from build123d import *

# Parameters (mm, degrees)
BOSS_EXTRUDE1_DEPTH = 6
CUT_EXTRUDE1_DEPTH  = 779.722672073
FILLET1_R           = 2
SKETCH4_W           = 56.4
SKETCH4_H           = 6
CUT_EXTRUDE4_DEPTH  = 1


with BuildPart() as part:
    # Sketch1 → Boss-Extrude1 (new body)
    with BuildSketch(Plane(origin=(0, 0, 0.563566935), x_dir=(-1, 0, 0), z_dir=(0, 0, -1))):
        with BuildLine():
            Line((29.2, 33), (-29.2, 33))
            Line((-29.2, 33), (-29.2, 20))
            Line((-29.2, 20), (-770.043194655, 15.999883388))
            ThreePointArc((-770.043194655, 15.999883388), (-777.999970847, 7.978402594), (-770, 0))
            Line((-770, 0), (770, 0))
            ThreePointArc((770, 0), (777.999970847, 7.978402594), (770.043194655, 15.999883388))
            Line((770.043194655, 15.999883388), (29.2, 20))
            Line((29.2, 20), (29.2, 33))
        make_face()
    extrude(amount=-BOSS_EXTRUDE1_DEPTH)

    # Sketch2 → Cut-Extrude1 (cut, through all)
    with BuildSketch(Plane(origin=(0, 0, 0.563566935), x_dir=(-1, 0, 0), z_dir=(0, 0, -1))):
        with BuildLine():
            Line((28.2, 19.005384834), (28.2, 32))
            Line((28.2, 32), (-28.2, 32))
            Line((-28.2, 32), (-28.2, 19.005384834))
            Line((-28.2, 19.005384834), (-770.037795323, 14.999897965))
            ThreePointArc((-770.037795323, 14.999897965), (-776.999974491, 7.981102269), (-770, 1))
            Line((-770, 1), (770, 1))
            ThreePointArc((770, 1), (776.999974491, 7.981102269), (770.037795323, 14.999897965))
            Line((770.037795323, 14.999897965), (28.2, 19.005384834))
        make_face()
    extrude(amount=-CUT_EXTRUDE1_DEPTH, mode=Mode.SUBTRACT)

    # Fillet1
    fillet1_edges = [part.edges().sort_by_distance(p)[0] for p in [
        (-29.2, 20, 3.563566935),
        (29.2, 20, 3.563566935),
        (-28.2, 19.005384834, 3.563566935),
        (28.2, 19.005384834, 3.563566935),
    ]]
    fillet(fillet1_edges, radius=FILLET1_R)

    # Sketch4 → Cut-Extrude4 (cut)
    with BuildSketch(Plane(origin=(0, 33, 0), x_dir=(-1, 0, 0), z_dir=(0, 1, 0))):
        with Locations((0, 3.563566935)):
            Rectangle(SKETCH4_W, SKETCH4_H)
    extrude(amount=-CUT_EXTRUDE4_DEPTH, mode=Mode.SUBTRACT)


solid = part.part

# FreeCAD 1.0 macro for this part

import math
import FreeCAD as App
import Part
import Sketcher

V = App.Vector
Q = App.Units.Quantity


def edges_at(feature, points):
    """Names of the edges that pass closest to the given points."""
    edges = feature.Shape.Edges
    near = lambda p: min(range(len(edges)), key=lambda i: edges[i].distToShape(Part.Vertex(*p))[0])
    return sorted({f"Edge{near(p) + 1}" for p in points})

doc = App.newDocument("Part")
params = doc.addObject("Spreadsheet::Sheet", "Params")
for row, (alias, value) in enumerate([
    ("sketch1_radius", "8 mm"),
    ("sketch1_width", "1540 mm"),
    ("sketch1_height", "13 mm"),
    ("sketch1_width2", "58.4 mm"),
    ("pad1_length", "6 mm"),
    ("sketch2_radius", "7 mm"),
    ("sketch2_width", "1540 mm"),
    ("sketch2_width2", "56.4 mm"),
    ("fillet_radius", "2 mm"),
    ("sketch3_height", "6 mm"),
    ("sketch3_width", "56.4 mm"),
    ("pocket2_length", "1 mm"),
], start=1):
    params.set(f"A{row}", alias)
    params.set(f"B{row}", "=" + value)
    params.setAlias(f"B{row}", alias)

body = doc.addObject("PartDesign::Body", "Body")

# Sketch on XY plane
sketch1 = body.newObject("Sketcher::SketchObject", "Sketch")
sketch1.AttachmentSupport = (doc.getObject("XY_Plane"), [""])
sketch1.MapMode = "FlatFace"
sketch1.AttachmentOffset = App.Placement(V(0, 0, 0.563567), App.Rotation())
sketch1.addGeometry([
    Part.LineSegment(V(-29.2, 33, 0), V(29.2, 33, 0)),  # 0
    Part.LineSegment(V(29.2, 33, 0), V(29.2, 20, 0)),  # 1
    Part.LineSegment(V(29.2, 20, 0), V(770.043195, 15.999883, 0)),  # 2
    Part.ArcOfCircle(Part.Circle(V(770, 8, 0), V(0, 0, 1), 8), math.radians(-90), math.radians(89.69064)),  # 3
    Part.LineSegment(V(770, 0, 0), V(-770, 0, 0)),  # 4
    Part.ArcOfCircle(Part.Circle(V(-770, 8, 0), V(0, 0, 1), 8), math.radians(90.30936), math.radians(270)),  # 5
    Part.LineSegment(V(-770.043195, 15.999883, 0), V(-29.2, 20, 0)),  # 6
    Part.LineSegment(V(-29.2, 20, 0), V(-29.2, 33, 0)),  # 7
], False)
sketch1.addConstraint([
    Sketcher.Constraint("Coincident", 0, 2, 1, 1),
    Sketcher.Constraint("Coincident", 1, 2, 2, 1),
    Sketcher.Constraint("Tangent", 2, 2, 3, 2),
    Sketcher.Constraint("Tangent", 3, 1, 4, 1),
    Sketcher.Constraint("Tangent", 4, 2, 5, 2),
    Sketcher.Constraint("Tangent", 5, 1, 6, 1),
    Sketcher.Constraint("Coincident", 6, 2, 7, 1),
    Sketcher.Constraint("Coincident", 7, 2, 0, 1),
    Sketcher.Constraint("Horizontal", 0),
    Sketcher.Constraint("Vertical", 1),
    Sketcher.Constraint("Horizontal", 4),
    Sketcher.Constraint("Vertical", 7),
    Sketcher.Constraint("Equal", 3, 5),
    Sketcher.Constraint("Symmetric", 3, 1, 4, 2, -1, 1),
    Sketcher.Constraint("Symmetric", 1, 2, 6, 2, -2),
    Sketcher.Constraint("Radius", 3, Q("8 mm")),
    Sketcher.Constraint("DistanceX", 4, 2, 4, 1, Q("1540 mm")),
    Sketcher.Constraint("DistanceY", 1, 2, 1, 1, Q("13 mm")),
    Sketcher.Constraint("DistanceX", 0, 1, 0, 2, Q("58.4 mm")),
    Sketcher.Constraint("DistanceY", -1, 1, 0, 2, Q("33 mm")),
])
sketch1.setExpression("Constraints[15]", "Params.sketch1_radius")
sketch1.setExpression("Constraints[16]", "Params.sketch1_width")
sketch1.setExpression("Constraints[17]", "Params.sketch1_height")
sketch1.setExpression("Constraints[18]", "Params.sketch1_width2")
pad1 = body.newObject("PartDesign::Pad", "Pad")
pad1.Profile = sketch1
pad1.setExpression("Length", "Params.pad1_length")

# Sketch on XY plane
sketch2 = body.newObject("Sketcher::SketchObject", "Sketch001")
sketch2.AttachmentSupport = (doc.getObject("XY_Plane"), [""])
sketch2.MapMode = "FlatFace"
sketch2.AttachmentOffset = App.Placement(V(0, 0, 0.563567), App.Rotation())
sketch2.addGeometry([
    Part.LineSegment(V(-28.2, 19.005385, 0), V(-28.2, 32, 0)),  # 0
    Part.LineSegment(V(-28.2, 32, 0), V(28.2, 32, 0)),  # 1
    Part.LineSegment(V(28.2, 32, 0), V(28.2, 19.005385, 0)),  # 2
    Part.LineSegment(V(28.2, 19.005385, 0), V(770.037795, 14.999898, 0)),  # 3
    Part.ArcOfCircle(Part.Circle(V(770, 8, 0), V(0, 0, 1), 7), math.radians(-90), math.radians(89.69064)),  # 4
    Part.LineSegment(V(770, 1, 0), V(-770, 1, 0)),  # 5
    Part.ArcOfCircle(Part.Circle(V(-770, 8, 0), V(0, 0, 1), 7), math.radians(90.30936), math.radians(270)),  # 6
    Part.LineSegment(V(-770.037795, 14.999898, 0), V(-28.2, 19.005385, 0)),  # 7
], False)
sketch2.addConstraint([
    Sketcher.Constraint("Coincident", 0, 2, 1, 1),
    Sketcher.Constraint("Coincident", 1, 2, 2, 1),
    Sketcher.Constraint("Coincident", 2, 2, 3, 1),
    Sketcher.Constraint("Tangent", 3, 2, 4, 2),
    Sketcher.Constraint("Tangent", 4, 1, 5, 1),
    Sketcher.Constraint("Tangent", 5, 2, 6, 2),
    Sketcher.Constraint("Tangent", 6, 1, 7, 1),
    Sketcher.Constraint("Coincident", 7, 2, 0, 1),
    Sketcher.Constraint("Vertical", 0),
    Sketcher.Constraint("Horizontal", 1),
    Sketcher.Constraint("Vertical", 2),
    Sketcher.Constraint("Horizontal", 5),
    Sketcher.Constraint("Equal", 4, 6),
    Sketcher.Constraint("Symmetric", 2, 2, 7, 2, -2),
    Sketcher.Constraint("Equal", 3, 7),
    Sketcher.Constraint("Radius", 4, Q("7 mm")),
    Sketcher.Constraint("DistanceX", 5, 2, 5, 1, Q("1540 mm")),
    Sketcher.Constraint("DistanceX", 1, 1, 1, 2, Q("56.4 mm")),
    Sketcher.Constraint("DistanceY", -1, 1, 4, 3, Q("8 mm")),
    Sketcher.Constraint("DistanceY", -1, 1, 0, 2, Q("32 mm")),
    Sketcher.Constraint("Distance", 3, Q("741.848609 mm")),
])
sketch2.setExpression("Constraints[15]", "Params.sketch2_radius")
sketch2.setExpression("Constraints[16]", "Params.sketch2_width")
sketch2.setExpression("Constraints[17]", "Params.sketch2_width2")
pocket1 = body.newObject("PartDesign::Pocket", "Pocket")
pocket1.Profile = sketch2
pocket1.Type = "ThroughAll"
pocket1.Reversed = True
doc.recompute()

fillet = body.newObject("PartDesign::Fillet", "Fillet")
fillet.Base = (pocket1, edges_at(pocket1, [
    (-29.2, 20, 3.564),
    (29.2, 20, 3.564),
    (-28.2, 19.005, 3.564),
    (28.2, 19.005, 3.564),
]))
fillet.setExpression("Radius", "Params.fillet_radius")

# Sketch on XZ plane
sketch3 = body.newObject("Sketcher::SketchObject", "Sketch002")
sketch3.AttachmentSupport = (doc.getObject("XZ_Plane"), [""])
sketch3.MapMode = "FlatFace"
sketch3.AttachmentOffset = App.Placement(V(0, 0, -33), App.Rotation())
sketch3.addGeometry([
    Part.LineSegment(V(28.2, 6.563567, 0), V(28.2, 0.563567, 0)),
    Part.LineSegment(V(28.2, 0.563567, 0), V(-28.2, 0.563567, 0)),
    Part.LineSegment(V(-28.2, 0.563567, 0), V(-28.2, 6.563567, 0)),
    Part.LineSegment(V(-28.2, 6.563567, 0), V(28.2, 6.563567, 0)),
], False)
sketch3.addConstraint([
    Sketcher.Constraint("Coincident", 0, 2, 1, 1),
    Sketcher.Constraint("Coincident", 1, 2, 2, 1),
    Sketcher.Constraint("Coincident", 2, 2, 3, 1),
    Sketcher.Constraint("Coincident", 3, 2, 0, 1),
    Sketcher.Constraint("Vertical", 0),
    Sketcher.Constraint("Horizontal", 1),
    Sketcher.Constraint("Vertical", 2),
    Sketcher.Constraint("Horizontal", 3),
    Sketcher.Constraint("DistanceY", 0, 2, 0, 1, Q("6 mm")),
    Sketcher.Constraint("DistanceX", 1, 2, 1, 1, Q("56.4 mm")),
    Sketcher.Constraint("DistanceX", -1, 1, 0, 2, Q("28.2 mm")),
    Sketcher.Constraint("DistanceY", -1, 1, 0, 2, Q("0.563567 mm")),
])
sketch3.setExpression("Constraints[8]", "Params.sketch3_height")
sketch3.setExpression("Constraints[9]", "Params.sketch3_width")
pocket2 = body.newObject("PartDesign::Pocket", "Pocket001")
pocket2.Profile = sketch3
pocket2.setExpression("Length", "Params.pocket2_length")
pocket2.Reversed = True

doc.recompute()
